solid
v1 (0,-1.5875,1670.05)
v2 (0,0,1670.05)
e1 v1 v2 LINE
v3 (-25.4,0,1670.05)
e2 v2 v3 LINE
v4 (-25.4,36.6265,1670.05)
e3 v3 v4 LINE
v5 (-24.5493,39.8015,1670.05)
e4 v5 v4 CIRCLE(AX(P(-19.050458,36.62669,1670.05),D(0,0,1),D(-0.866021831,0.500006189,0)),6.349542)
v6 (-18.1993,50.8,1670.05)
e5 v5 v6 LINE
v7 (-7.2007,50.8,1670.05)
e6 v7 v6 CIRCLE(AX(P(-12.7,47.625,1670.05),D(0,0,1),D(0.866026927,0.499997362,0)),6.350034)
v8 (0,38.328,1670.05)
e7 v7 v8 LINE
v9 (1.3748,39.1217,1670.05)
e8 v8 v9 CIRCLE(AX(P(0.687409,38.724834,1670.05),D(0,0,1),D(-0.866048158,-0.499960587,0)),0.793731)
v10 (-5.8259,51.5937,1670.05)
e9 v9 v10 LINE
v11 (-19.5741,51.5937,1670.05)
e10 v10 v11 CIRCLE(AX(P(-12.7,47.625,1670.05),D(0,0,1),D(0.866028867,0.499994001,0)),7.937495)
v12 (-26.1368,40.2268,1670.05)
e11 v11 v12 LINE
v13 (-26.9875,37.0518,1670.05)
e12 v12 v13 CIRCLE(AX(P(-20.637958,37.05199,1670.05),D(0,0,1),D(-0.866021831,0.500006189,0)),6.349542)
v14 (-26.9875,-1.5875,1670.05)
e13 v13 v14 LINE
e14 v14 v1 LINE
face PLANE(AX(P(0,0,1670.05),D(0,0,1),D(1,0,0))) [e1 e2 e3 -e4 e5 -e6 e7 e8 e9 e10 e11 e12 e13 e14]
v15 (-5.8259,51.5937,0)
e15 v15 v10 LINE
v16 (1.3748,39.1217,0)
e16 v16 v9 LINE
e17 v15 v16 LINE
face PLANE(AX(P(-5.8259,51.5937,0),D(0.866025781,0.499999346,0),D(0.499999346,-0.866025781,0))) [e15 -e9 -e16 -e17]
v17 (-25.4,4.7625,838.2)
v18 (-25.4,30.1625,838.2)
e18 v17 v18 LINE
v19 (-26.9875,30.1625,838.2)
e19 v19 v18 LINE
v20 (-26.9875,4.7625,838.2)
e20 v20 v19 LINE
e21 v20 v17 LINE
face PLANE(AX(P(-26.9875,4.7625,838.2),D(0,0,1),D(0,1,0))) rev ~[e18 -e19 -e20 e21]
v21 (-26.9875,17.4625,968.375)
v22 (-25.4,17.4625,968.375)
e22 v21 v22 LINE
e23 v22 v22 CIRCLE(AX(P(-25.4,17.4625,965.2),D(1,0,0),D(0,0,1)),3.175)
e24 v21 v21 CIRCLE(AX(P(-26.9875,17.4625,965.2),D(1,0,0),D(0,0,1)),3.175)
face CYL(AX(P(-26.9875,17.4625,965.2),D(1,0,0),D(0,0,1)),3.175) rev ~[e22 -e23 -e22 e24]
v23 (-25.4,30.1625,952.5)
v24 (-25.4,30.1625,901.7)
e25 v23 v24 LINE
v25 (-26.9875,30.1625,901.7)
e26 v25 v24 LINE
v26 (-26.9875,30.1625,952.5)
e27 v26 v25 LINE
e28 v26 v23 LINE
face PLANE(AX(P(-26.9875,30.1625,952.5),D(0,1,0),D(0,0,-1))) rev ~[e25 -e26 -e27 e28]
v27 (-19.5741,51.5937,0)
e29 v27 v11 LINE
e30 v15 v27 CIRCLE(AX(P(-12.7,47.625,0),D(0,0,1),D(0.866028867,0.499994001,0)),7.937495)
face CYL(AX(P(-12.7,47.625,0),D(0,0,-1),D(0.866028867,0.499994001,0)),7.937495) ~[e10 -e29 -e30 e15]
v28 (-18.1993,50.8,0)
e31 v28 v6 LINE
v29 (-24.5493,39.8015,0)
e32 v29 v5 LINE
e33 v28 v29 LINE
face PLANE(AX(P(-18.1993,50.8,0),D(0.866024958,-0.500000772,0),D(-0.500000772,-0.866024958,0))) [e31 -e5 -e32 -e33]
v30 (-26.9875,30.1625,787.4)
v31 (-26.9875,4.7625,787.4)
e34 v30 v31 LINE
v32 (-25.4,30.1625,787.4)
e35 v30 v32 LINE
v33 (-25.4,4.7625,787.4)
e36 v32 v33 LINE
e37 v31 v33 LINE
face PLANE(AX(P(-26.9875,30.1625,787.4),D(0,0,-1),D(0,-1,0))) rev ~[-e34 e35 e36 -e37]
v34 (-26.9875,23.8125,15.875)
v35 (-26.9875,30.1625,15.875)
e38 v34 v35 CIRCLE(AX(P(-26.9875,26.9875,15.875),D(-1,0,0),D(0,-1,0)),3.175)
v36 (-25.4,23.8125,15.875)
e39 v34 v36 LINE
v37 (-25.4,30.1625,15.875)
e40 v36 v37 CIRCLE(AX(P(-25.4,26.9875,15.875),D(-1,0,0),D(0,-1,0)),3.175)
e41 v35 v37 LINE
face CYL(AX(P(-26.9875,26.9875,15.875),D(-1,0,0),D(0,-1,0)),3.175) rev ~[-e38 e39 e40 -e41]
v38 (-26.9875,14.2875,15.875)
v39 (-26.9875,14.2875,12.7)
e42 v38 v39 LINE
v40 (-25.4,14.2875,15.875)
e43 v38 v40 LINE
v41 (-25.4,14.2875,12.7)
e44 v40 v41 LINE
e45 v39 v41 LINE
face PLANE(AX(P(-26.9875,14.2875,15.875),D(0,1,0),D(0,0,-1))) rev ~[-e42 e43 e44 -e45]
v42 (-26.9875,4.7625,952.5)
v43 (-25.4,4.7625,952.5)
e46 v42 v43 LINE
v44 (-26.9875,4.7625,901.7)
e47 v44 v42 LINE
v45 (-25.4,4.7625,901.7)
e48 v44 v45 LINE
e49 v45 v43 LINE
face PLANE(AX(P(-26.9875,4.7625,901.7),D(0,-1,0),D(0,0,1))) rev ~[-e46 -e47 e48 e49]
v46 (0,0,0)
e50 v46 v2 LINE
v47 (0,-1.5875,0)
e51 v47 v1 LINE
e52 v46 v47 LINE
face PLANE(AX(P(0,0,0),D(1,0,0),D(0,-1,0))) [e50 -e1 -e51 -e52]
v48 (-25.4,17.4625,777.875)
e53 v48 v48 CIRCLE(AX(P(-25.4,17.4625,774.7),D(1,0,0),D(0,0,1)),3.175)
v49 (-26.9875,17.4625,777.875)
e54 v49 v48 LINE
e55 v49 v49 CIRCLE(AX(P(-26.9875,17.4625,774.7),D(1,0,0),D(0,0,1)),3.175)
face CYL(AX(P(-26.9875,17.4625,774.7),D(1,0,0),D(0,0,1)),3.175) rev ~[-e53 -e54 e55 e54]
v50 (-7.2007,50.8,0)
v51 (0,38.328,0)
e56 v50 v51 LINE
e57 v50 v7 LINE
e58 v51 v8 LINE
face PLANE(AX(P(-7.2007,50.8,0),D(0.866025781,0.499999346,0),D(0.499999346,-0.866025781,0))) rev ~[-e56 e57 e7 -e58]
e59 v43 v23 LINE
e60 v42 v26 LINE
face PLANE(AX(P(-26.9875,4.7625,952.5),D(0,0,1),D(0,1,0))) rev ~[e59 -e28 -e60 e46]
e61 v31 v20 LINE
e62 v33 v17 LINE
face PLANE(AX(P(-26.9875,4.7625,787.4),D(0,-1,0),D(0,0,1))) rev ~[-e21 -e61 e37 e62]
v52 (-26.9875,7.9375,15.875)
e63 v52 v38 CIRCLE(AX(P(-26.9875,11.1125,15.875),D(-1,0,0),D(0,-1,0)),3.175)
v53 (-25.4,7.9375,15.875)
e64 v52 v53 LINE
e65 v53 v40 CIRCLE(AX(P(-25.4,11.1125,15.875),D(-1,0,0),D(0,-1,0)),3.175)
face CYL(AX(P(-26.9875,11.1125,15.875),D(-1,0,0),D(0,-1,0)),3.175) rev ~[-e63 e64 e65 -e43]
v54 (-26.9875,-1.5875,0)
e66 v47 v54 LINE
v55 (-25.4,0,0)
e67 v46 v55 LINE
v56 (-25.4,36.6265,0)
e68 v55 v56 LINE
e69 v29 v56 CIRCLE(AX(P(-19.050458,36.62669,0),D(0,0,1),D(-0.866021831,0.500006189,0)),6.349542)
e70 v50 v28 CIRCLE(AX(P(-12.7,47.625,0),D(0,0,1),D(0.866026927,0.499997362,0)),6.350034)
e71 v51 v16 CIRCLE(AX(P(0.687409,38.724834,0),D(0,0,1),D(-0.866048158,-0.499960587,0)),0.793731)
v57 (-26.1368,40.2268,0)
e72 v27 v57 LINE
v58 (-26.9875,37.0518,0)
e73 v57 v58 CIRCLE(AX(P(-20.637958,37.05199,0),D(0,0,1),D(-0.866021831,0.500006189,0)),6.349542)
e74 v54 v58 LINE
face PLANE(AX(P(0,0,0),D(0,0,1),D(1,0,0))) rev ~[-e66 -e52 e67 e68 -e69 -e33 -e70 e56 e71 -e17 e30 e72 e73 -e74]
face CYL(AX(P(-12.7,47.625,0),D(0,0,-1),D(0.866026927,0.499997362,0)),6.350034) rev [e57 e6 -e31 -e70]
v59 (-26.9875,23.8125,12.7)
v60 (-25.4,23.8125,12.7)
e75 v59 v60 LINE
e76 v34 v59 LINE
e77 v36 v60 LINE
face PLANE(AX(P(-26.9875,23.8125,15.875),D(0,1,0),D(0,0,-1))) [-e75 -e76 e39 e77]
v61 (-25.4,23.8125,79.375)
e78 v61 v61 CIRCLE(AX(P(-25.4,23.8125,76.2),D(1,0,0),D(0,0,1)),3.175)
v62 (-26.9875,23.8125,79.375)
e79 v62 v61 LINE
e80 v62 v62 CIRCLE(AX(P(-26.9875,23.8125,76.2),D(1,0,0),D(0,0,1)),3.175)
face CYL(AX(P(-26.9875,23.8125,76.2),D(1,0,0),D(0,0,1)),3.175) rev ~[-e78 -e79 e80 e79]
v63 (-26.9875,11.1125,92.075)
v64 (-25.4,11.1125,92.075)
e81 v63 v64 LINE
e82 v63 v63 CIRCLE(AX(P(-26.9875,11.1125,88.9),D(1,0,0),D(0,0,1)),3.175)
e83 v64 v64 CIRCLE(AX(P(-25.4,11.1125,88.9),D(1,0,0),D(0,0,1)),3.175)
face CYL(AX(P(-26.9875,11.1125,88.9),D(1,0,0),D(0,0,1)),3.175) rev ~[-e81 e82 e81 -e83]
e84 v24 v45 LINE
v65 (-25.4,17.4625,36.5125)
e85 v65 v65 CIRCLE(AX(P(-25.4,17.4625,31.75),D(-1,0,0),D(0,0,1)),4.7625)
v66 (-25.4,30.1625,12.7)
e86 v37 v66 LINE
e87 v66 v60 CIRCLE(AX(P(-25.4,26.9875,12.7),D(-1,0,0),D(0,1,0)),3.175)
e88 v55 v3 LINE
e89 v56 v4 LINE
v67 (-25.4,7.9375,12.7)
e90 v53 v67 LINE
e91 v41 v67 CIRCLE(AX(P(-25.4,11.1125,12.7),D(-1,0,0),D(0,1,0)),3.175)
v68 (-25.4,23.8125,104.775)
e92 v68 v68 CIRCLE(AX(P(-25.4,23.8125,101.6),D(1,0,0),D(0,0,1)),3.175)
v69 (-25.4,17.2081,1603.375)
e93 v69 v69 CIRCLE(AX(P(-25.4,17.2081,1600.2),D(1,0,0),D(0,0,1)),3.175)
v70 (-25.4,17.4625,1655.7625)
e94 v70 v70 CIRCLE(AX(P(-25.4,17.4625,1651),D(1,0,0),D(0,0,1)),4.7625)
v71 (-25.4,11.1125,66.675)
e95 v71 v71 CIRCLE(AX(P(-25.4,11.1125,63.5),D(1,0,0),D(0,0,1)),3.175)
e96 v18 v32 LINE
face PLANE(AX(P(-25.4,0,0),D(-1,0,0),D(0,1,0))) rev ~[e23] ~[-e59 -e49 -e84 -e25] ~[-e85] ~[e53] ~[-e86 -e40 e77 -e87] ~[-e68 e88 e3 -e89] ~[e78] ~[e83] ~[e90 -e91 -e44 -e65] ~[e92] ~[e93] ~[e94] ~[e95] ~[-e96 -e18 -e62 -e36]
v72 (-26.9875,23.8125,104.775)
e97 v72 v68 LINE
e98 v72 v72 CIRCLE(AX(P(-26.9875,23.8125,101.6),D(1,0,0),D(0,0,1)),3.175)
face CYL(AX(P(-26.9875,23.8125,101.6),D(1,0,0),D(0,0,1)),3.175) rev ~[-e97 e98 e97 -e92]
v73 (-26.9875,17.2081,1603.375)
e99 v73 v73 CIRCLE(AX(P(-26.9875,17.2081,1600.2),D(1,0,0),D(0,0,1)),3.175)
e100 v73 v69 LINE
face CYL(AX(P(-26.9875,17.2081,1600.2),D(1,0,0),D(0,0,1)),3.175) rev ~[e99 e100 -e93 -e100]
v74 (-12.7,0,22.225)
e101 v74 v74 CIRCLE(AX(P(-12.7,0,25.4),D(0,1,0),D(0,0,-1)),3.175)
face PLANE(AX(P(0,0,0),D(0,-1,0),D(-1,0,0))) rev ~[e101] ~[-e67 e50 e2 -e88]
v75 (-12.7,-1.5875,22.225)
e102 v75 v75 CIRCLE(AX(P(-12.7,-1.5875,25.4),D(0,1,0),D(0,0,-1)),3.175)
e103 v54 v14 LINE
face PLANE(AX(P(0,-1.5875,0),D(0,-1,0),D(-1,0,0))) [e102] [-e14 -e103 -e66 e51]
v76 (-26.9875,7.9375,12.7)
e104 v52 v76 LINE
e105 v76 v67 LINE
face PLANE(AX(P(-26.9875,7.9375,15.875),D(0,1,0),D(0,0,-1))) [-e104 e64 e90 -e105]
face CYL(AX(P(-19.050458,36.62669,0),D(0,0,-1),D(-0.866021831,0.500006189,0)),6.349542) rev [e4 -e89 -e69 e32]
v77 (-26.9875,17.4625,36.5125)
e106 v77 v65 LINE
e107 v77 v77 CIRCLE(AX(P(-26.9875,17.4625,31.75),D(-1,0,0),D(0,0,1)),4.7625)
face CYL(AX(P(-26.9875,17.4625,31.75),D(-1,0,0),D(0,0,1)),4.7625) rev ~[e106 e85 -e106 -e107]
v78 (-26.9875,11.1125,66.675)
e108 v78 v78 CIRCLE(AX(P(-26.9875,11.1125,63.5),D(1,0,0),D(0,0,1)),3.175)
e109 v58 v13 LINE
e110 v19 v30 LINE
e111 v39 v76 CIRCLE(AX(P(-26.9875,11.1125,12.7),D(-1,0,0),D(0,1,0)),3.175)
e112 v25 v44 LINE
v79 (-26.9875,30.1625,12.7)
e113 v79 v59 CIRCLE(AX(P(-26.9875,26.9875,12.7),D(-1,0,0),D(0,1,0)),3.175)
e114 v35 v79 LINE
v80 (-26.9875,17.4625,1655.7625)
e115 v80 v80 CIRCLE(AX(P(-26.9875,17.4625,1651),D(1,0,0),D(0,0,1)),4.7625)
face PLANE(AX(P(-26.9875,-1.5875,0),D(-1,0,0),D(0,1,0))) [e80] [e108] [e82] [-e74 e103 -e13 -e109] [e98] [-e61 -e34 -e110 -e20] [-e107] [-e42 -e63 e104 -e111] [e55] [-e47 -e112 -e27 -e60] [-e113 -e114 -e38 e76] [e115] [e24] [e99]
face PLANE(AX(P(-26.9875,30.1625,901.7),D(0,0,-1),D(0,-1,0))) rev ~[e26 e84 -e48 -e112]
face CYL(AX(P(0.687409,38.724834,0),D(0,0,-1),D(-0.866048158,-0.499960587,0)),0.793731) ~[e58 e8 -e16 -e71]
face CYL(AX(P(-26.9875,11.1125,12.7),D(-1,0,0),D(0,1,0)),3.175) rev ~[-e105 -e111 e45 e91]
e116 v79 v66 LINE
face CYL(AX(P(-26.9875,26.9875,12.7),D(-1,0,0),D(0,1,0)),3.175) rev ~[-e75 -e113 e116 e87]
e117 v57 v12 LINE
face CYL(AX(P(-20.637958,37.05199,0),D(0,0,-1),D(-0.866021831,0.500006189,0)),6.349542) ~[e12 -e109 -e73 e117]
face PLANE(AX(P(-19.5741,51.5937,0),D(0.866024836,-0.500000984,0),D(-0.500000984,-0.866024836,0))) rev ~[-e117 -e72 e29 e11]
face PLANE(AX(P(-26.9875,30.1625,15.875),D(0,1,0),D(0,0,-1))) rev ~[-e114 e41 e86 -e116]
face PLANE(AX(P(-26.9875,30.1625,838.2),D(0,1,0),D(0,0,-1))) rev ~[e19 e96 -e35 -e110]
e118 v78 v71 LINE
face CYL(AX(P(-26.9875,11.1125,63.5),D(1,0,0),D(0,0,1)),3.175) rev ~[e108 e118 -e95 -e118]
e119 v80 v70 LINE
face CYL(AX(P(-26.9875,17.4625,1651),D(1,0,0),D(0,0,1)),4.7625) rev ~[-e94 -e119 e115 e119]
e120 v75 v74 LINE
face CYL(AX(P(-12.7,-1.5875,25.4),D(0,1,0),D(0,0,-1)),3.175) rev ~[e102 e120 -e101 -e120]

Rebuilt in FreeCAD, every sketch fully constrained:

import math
import FreeCAD as App
import Part
import Sketcher
Q = App.Units.Quantity


def add_polygon(sketch, points):
    """Adds a closed chain of lines whose ends are joined by coincident constraints."""
    first, n = sketch.GeometryCount, len(points)
    for a, b in zip(points, points[1:] + points[:1]):
        sketch.addGeometry(Part.LineSegment(App.Vector(*a, 0), App.Vector(*b, 0)), False)
    for i in range(n):
        sketch.addConstraint(Sketcher.Constraint("Coincident", first + i, 2, first + (i + 1) % n, 1))

doc = App.newDocument("Part")
body = doc.addObject("PartDesign::Body", "Body")

# Sketch on XY plane
sketch1 = body.newObject("Sketcher::SketchObject", "Sketch")
sketch1.AttachmentSupport = (doc.getObject("XY_Plane"), [""])
sketch1.MapMode = "FlatFace"
sketch1.addGeometry([
    Part.LineSegment(App.Vector(0, -1.6, 0), App.Vector(0, 0, 0)),  # 0
    Part.LineSegment(App.Vector(0, 0, 0), App.Vector(-25.4, 0, 0)),  # 1
    Part.LineSegment(App.Vector(-25.4, 0, 0), App.Vector(-25.4, 36.6, 0)),  # 2
    Part.ArcOfCircle(Part.Circle(App.Vector(-19.1, 36.6, 0), App.Vector(0, 0, 1), 6.4), math.radians(150), math.radians(180)),  # 3
    Part.LineSegment(App.Vector(-24.5, 39.8, 0), App.Vector(-18.2, 50.8, 0)),  # 4
    Part.ArcOfCircle(Part.Circle(App.Vector(-12.7, 47.6, 0), App.Vector(0, 0, 1), 6.4), math.radians(30), math.radians(150)),  # 5
    Part.LineSegment(App.Vector(-7.2, 50.8, 0), App.Vector(0, 38.3, 0)),  # 6
    Part.ArcOfCircle(Part.Circle(App.Vector(0.7, 38.7, 0), App.Vector(0, 0, 1), 0.8), math.radians(-150), math.radians(30)),  # 7
    Part.LineSegment(App.Vector(1.4, 39.1, 0), App.Vector(-5.8, 51.6, 0)),  # 8
    Part.ArcOfCircle(Part.Circle(App.Vector(-12.7, 47.6, 0), App.Vector(0, 0, 1), 7.9), math.radians(30), math.radians(150)),  # 9
    Part.LineSegment(App.Vector(-19.6, 51.6, 0), App.Vector(-26.1, 40.2, 0)),  # 10
    Part.ArcOfCircle(Part.Circle(App.Vector(-20.6, 37.1, 0), App.Vector(0, 0, 1), 6.4), math.radians(150), math.radians(180)),  # 11
    Part.LineSegment(App.Vector(-27, 37.1, 0), App.Vector(-27, -1.6, 0)),  # 12
    Part.LineSegment(App.Vector(-27, -1.6, 0), App.Vector(0, -1.6, 0)),  # 13
], False)
sketch1.addConstraint([
    Sketcher.Constraint("Coincident", 0, 2, 1, 1),
    Sketcher.Constraint("Coincident", 1, 2, 2, 1),
    Sketcher.Constraint("Tangent", 2, 2, 3, 2),
    Sketcher.Constraint("Tangent", 3, 1, 4, 1),
    Sketcher.Constraint("Tangent", 4, 2, 5, 2),
    Sketcher.Constraint("Tangent", 5, 1, 6, 1),
    Sketcher.Constraint("Tangent", 6, 2, 7, 1),
    Sketcher.Constraint("Tangent", 7, 2, 8, 1),
    Sketcher.Constraint("Tangent", 8, 2, 9, 1),
    Sketcher.Constraint("Tangent", 9, 2, 10, 1),
    Sketcher.Constraint("Tangent", 10, 2, 11, 1),
    Sketcher.Constraint("Tangent", 11, 2, 12, 1),
    Sketcher.Constraint("Coincident", 12, 2, 13, 1),
    Sketcher.Constraint("Coincident", 13, 2, 0, 1),
    Sketcher.Constraint("Vertical", 0),
    Sketcher.Constraint("Horizontal", 1),
    Sketcher.Constraint("Vertical", 2),
    Sketcher.Constraint("Vertical", 12),
    Sketcher.Constraint("Horizontal", 13),
    Sketcher.Constraint("Coincident", 0, 2, -1, 1),
    Sketcher.Constraint("Coincident", 9, 3, 5, 3),
    Sketcher.Constraint("Equal", 3, 5),
    Sketcher.Constraint("Equal", 5, 11),
    Sketcher.Constraint("PointOnObject", 6, 2, -2),
    Sketcher.Constraint("Parallel", 6, 8),
    Sketcher.Constraint("Parallel", 4, 10),
    Sketcher.Constraint("Horizontal", 4, 2, 5, 1),
    Sketcher.Constraint("Radius", 3, Q("0.25 in")),
    Sketcher.Constraint("Angle", 4, Q("60 deg")),
    Sketcher.Constraint("Radius", 7, Q("0.031248 in")),
    Sketcher.Constraint("Distance", 4, Q("0.5 in")),
    Sketcher.Constraint("DistanceX", 5, 3, -1, 1, Q("0.5 in")),
    Sketcher.Constraint("DistanceX", 13, 1, 13, 2, Q("1.0625 in")),
    Sketcher.Constraint("DistanceY", 0, 1, 0, 2, Q("0.0625 in")),
    Sketcher.Constraint("DistanceY", -1, 1, 4, 2, Q("2 in")),
])
pad1 = body.newObject("PartDesign::Pad", "Pad")
pad1.Profile = sketch1
pad1.Length = Q("66.5 in")

# Sketch on YZ plane
sketch2 = body.newObject("Sketcher::SketchObject", "Sketch001")
sketch2.AttachmentSupport = (doc.getObject("YZ_Plane"), [""])
sketch2.MapMode = "FlatFace"
sketch2.AttachmentOffset = App.Placement(App.Vector(0, 0, -1.0625 * 25.4), App.Rotation())
sketch2.addGeometry(Part.Circle(App.Vector(17.5, 1651, 0), App.Vector(0, 0, 1), 4.8), False)
sketch2.addConstraint([
    Sketcher.Constraint("Diameter", 0, Q("0.375 in")),
    Sketcher.Constraint("DistanceY", -1, 1, 0, 3, Q("65 in")),
    Sketcher.Constraint("DistanceX", -1, 1, 0, 3, Q("0.6875 in")),
])
doc.recompute()
hole = body.newObject("PartDesign::Hole", "Hole")
hole.Profile = sketch2
hole.ThreadType = "None"
hole.Diameter = Q("0.375 in")
hole.DepthType = "ThroughAll"
hole.Reversed = True

# Sketch on YZ plane
sketch3 = body.newObject("Sketcher::SketchObject", "Sketch002")
sketch3.AttachmentSupport = (doc.getObject("YZ_Plane"), [""])
sketch3.MapMode = "FlatFace"
sketch3.AttachmentOffset = App.Placement(App.Vector(0, 0, -1.0625 * 25.4), App.Rotation())
sketch3.addGeometry([
    Part.Circle(App.Vector(17.5, 31.8, 0), App.Vector(0, 0, 1), 4.8),  # 0
    Part.LineSegment(App.Vector(23.8, 12.7, 0), App.Vector(23.8, 15.9, 0)),  # 1
    Part.ArcOfCircle(Part.Circle(App.Vector(27, 15.9, 0), App.Vector(0, 0, 1), 3.2), math.radians(0), math.radians(180)),  # 2
    Part.LineSegment(App.Vector(30.2, 15.9, 0), App.Vector(30.2, 12.7, 0)),  # 3
    Part.ArcOfCircle(Part.Circle(App.Vector(27, 12.7, 0), App.Vector(0, 0, 1), 3.2), math.radians(180), math.radians(360)),  # 4
    Part.LineSegment(App.Vector(7.9, 12.7, 0), App.Vector(7.9, 15.9, 0)),  # 5
    Part.ArcOfCircle(Part.Circle(App.Vector(11.1, 15.9, 0), App.Vector(0, 0, 1), 3.2), math.radians(0), math.radians(180)),  # 6
    Part.LineSegment(App.Vector(14.3, 15.9, 0), App.Vector(14.3, 12.7, 0)),  # 7
    Part.ArcOfCircle(Part.Circle(App.Vector(11.1, 12.7, 0), App.Vector(0, 0, 1), 3.2), math.radians(180), math.radians(360)),  # 8
], False)
sketch3.addConstraint([
    Sketcher.Constraint("Tangent", 1, 2, 2, 2),
    Sketcher.Constraint("Tangent", 2, 1, 3, 1),
    Sketcher.Constraint("Tangent", 3, 2, 4, 2),
    Sketcher.Constraint("Tangent", 4, 1, 1, 1),
    Sketcher.Constraint("Tangent", 5, 2, 6, 2),
    Sketcher.Constraint("Tangent", 6, 1, 7, 1),
    Sketcher.Constraint("Tangent", 7, 2, 8, 2),
    Sketcher.Constraint("Tangent", 8, 1, 5, 1),
    Sketcher.Constraint("Vertical", 1),
    Sketcher.Constraint("Vertical", 3),
    Sketcher.Constraint("Vertical", 5),
    Sketcher.Constraint("Vertical", 7),
    Sketcher.Constraint("Equal", 4, 6),
    Sketcher.Constraint("Horizontal", 2, 3, 6, 3),
    Sketcher.Constraint("Horizontal", 4, 3, 8, 3),
    Sketcher.Constraint("Diameter", 0, Q("0.375 in")),
    Sketcher.Constraint("Radius", 2, Q("0.125 in")),
    Sketcher.Constraint("DistanceY", -1, 1, 4, 3, Q("0.5 in")),
    Sketcher.Constraint("DistanceX", 6, 3, 1, 2, Q("0.5 in")),
    Sketcher.Constraint("DistanceY", 1, 1, 1, 2, Q("0.125 in")),
    Sketcher.Constraint("DistanceY", -1, 1, 0, 3, Q("1.25 in")),
    Sketcher.Constraint("DistanceX", 0, 3, 2, 3, Q("0.375 in")),
    Sketcher.Constraint("DistanceX", -1, 1, 0, 3, Q("0.6875 in")),
])
pocket1 = body.newObject("PartDesign::Pocket", "Pocket")
pocket1.Profile = sketch3
pocket1.Length = Q("1 in")
pocket1.Reversed = True

# Sketch on YZ plane
sketch4 = body.newObject("Sketcher::SketchObject", "Sketch003")
sketch4.AttachmentSupport = (doc.getObject("YZ_Plane"), [""])
sketch4.MapMode = "FlatFace"
sketch4.AttachmentOffset = App.Placement(App.Vector(0, 0, -1.0625 * 25.4), App.Rotation())
sketch4.addGeometry([
    Part.Circle(App.Vector(23.8, 101.6, 0), App.Vector(0, 0, 1), 3.2),
    Part.Circle(App.Vector(11.1, 88.9, 0), App.Vector(0, 0, 1), 3.2),
    Part.Circle(App.Vector(23.8, 76.2, 0), App.Vector(0, 0, 1), 3.2),
    Part.Circle(App.Vector(11.1, 63.5, 0), App.Vector(0, 0, 1), 3.2),
], False)
sketch4.addConstraint([
    Sketcher.Constraint("Equal", 0, 1),
    Sketcher.Constraint("Equal", 1, 2),
    Sketcher.Constraint("Equal", 2, 3),
    Sketcher.Constraint("Vertical", 0, 3, 2, 3),
    Sketcher.Constraint("Vertical", 1, 3, 3, 3),
    Sketcher.Constraint("Diameter", 0, Q("0.25 in")),
    Sketcher.Constraint("DistanceY", -1, 1, 0, 3, Q("4 in")),
    Sketcher.Constraint("DistanceY", -1, 1, 2, 3, Q("3 in")),
    Sketcher.Constraint("DistanceY", 3, 3, 1, 3, Q("1 in")),
    Sketcher.Constraint("DistanceY", -1, 1, 1, 3, Q("3.5 in")),
    Sketcher.Constraint("DistanceX", 1, 3, 0, 3, Q("0.5 in")),
    Sketcher.Constraint("DistanceX", -1, 1, 0, 3, Q("0.9375 in")),
])
doc.recompute()
hole2 = body.newObject("PartDesign::Hole", "Hole001")
hole2.Profile = sketch4
hole2.ThreadType = "None"
hole2.Diameter = Q("0.25 in")
hole2.DepthType = "ThroughAll"
hole2.Reversed = True

# Sketch on YZ plane
sketch5 = body.newObject("Sketcher::SketchObject", "Sketch004")
sketch5.AttachmentSupport = (doc.getObject("YZ_Plane"), [""])
sketch5.MapMode = "FlatFace"
sketch5.AttachmentOffset = App.Placement(App.Vector(0, 0, -1.0625 * 25.4), App.Rotation())
add_polygon(sketch5, [(30, 787), (5, 787), (5, 838), (30, 838)])  # lines 0-3
add_polygon(sketch5, [(30, 902), (5, 902), (5, 952), (30, 952)])  # lines 4-7
sketch5.addConstraint([
    Sketcher.Constraint("Horizontal", 0),
    Sketcher.Constraint("Vertical", 1),
    Sketcher.Constraint("Horizontal", 2),
    Sketcher.Constraint("Vertical", 3),
    Sketcher.Constraint("Horizontal", 4),
    Sketcher.Constraint("Vertical", 5),
    Sketcher.Constraint("Horizontal", 6),
    Sketcher.Constraint("Vertical", 7),
    Sketcher.Constraint("Vertical", 1, 2, 4, 2),
    Sketcher.Constraint("Vertical", 3, 2, 6, 2),
    Sketcher.Constraint("Equal", 3, 5),
    Sketcher.Constraint("DistanceX", 0, 2, 0, 1, Q("1 in")),
    Sketcher.Constraint("DistanceY", 1, 1, 1, 2, Q("2 in")),
    Sketcher.Constraint("DistanceY", -1, 1, 0, 2, Q("31 in")),
    Sketcher.Constraint("DistanceY", -1, 1, 4, 2, Q("35.5 in")),
    Sketcher.Constraint("DistanceX", -1, 1, 0, 2, Q("0.1875 in")),
])
pocket2 = body.newObject("PartDesign::Pocket", "Pocket001")
pocket2.Profile = sketch5
pocket2.Length = Q("1 in")
pocket2.Reversed = True

# Sketch on YZ plane
sketch6 = body.newObject("Sketcher::SketchObject", "Sketch005")
sketch6.AttachmentSupport = (doc.getObject("YZ_Plane"), [""])
sketch6.MapMode = "FlatFace"
sketch6.AttachmentOffset = App.Placement(App.Vector(0, 0, -1.0625 * 25.4), App.Rotation())
sketch6.addGeometry([
    Part.Circle(App.Vector(17.5, 965.2, 0), App.Vector(0, 0, 1), 3.2),
    Part.Circle(App.Vector(17.5, 774.7, 0), App.Vector(0, 0, 1), 3.2),
], False)
sketch6.addConstraint([
    Sketcher.Constraint("Equal", 0, 1),
    Sketcher.Constraint("Vertical", 0, 3, 1, 3),
    Sketcher.Constraint("Diameter", 0, Q("0.25 in")),
    Sketcher.Constraint("DistanceY", -1, 1, 0, 3, Q("38 in")),
    Sketcher.Constraint("DistanceY", -1, 1, 1, 3, Q("30.5 in")),
    Sketcher.Constraint("DistanceX", -1, 1, 0, 3, Q("0.6875 in")),
])
doc.recompute()
hole3 = body.newObject("PartDesign::Hole", "Hole002")
hole3.Profile = sketch6
hole3.ThreadType = "None"
hole3.Diameter = Q("0.25 in")
hole3.DepthType = "ThroughAll"
hole3.Reversed = True

# Sketch on XZ plane
sketch7 = body.newObject("Sketcher::SketchObject", "Sketch006")
sketch7.AttachmentSupport = (doc.getObject("XZ_Plane"), [""])
sketch7.MapMode = "FlatFace"
sketch7.AttachmentOffset = App.Placement(App.Vector(0, 0, 0.0625 * 25.4), App.Rotation())
sketch7.addGeometry([
    Part.Circle(App.Vector(-12.7, 25.4, 0), App.Vector(0, 0, 1), 3.2),
    Part.Circle(App.Vector(-12.7, 1676.4, 0), App.Vector(0, 0, 1), 3.2),
], False)
sketch7.addConstraint([
    Sketcher.Constraint("Equal", 0, 1),
    Sketcher.Constraint("Vertical", 0, 3, 1, 3),
    Sketcher.Constraint("Diameter", 0, Q("0.25 in")),
    Sketcher.Constraint("DistanceY", -1, 1, 0, 3, Q("1 in")),
    Sketcher.Constraint("DistanceY", -1, 1, 1, 3, Q("66 in")),
    Sketcher.Constraint("DistanceX", 0, 3, -1, 1, Q("0.5 in")),
])
doc.recompute()
hole4 = body.newObject("PartDesign::Hole", "Hole003")
hole4.Profile = sketch7
hole4.ThreadType = "None"
hole4.Diameter = Q("0.25 in")
hole4.DepthType = "Dimension"
hole4.Depth = Q("1 in")
hole4.DrillPoint = "Angled"
hole4.DrillPointAngle = 118

# Sketch on XY plane
sketch8 = body.newObject("Sketcher::SketchObject", "Sketch007")
sketch8.AttachmentSupport = (doc.getObject("XY_Plane"), [""])
sketch8.MapMode = "FlatFace"
sketch8.AttachmentOffset = App.Placement(App.Vector(0, 0, 66.5 * 25.4), App.Rotation())
sketch8.addGeometry([
    Part.LineSegment(App.Vector(0, -1.6, 0), App.Vector(0, 0, 0)),  # 0
    Part.LineSegment(App.Vector(0, 0, 0), App.Vector(-25.4, 0, 0)),  # 1
    Part.LineSegment(App.Vector(-25.4, 0, 0), App.Vector(-25.4, 36.6, 0)),  # 2
    Part.ArcOfCircle(Part.Circle(App.Vector(-19.1, 36.6, 0), App.Vector(0, 0, 1), 6.4), math.radians(150), math.radians(180)),  # 3
    Part.LineSegment(App.Vector(-24.5, 39.8, 0), App.Vector(-18.2, 50.8, 0)),  # 4
    Part.ArcOfCircle(Part.Circle(App.Vector(-12.7, 47.6, 0), App.Vector(0, 0, 1), 6.4), math.radians(30), math.radians(150)),  # 5
    Part.LineSegment(App.Vector(-7.2, 50.8, 0), App.Vector(0, 38.3, 0)),  # 6
    Part.ArcOfCircle(Part.Circle(App.Vector(0.7, 38.7, 0), App.Vector(0, 0, 1), 0.8), math.radians(-150), math.radians(30)),  # 7
    Part.LineSegment(App.Vector(1.4, 39.1, 0), App.Vector(-5.8, 51.6, 0)),  # 8
    Part.ArcOfCircle(Part.Circle(App.Vector(-12.7, 47.6, 0), App.Vector(0, 0, 1), 7.9), math.radians(30), math.radians(150)),  # 9
    Part.LineSegment(App.Vector(-19.6, 51.6, 0), App.Vector(-26.1, 40.2, 0)),  # 10
    Part.ArcOfCircle(Part.Circle(App.Vector(-20.6, 37.1, 0), App.Vector(0, 0, 1), 6.4), math.radians(150), math.radians(180)),  # 11
    Part.LineSegment(App.Vector(-27, 37.1, 0), App.Vector(-27, -1.6, 0)),  # 12
    Part.LineSegment(App.Vector(-27, -1.6, 0), App.Vector(0, -1.6, 0)),  # 13
], False)
sketch8.addConstraint([
    Sketcher.Constraint("Coincident", 0, 2, 1, 1),
    Sketcher.Constraint("Coincident", 1, 2, 2, 1),
    Sketcher.Constraint("Tangent", 2, 2, 3, 2),
    Sketcher.Constraint("Tangent", 3, 1, 4, 1),
    Sketcher.Constraint("Tangent", 4, 2, 5, 2),
    Sketcher.Constraint("Tangent", 5, 1, 6, 1),
    Sketcher.Constraint("Tangent", 6, 2, 7, 1),
    Sketcher.Constraint("Tangent", 7, 2, 8, 1),
    Sketcher.Constraint("Tangent", 8, 2, 9, 1),
    Sketcher.Constraint("Tangent", 9, 2, 10, 1),
    Sketcher.Constraint("Tangent", 10, 2, 11, 1),
    Sketcher.Constraint("Tangent", 11, 2, 12, 1),
    Sketcher.Constraint("Coincident", 12, 2, 13, 1),
    Sketcher.Constraint("Coincident", 13, 2, 0, 1),
    Sketcher.Constraint("Vertical", 0),
    Sketcher.Constraint("Horizontal", 1),
    Sketcher.Constraint("Vertical", 2),
    Sketcher.Constraint("Vertical", 12),
    Sketcher.Constraint("Horizontal", 13),
    Sketcher.Constraint("Coincident", 0, 2, -1, 1),
    Sketcher.Constraint("Coincident", 9, 3, 5, 3),
    Sketcher.Constraint("Equal", 3, 5),
    Sketcher.Constraint("Equal", 5, 11),
    Sketcher.Constraint("PointOnObject", 6, 2, -2),
    Sketcher.Constraint("Parallel", 6, 8),
    Sketcher.Constraint("Parallel", 4, 10),
    Sketcher.Constraint("Horizontal", 4, 2, 5, 1),
    Sketcher.Constraint("DistanceX", 1, 2, 1, 1, Q("1 in")),
    Sketcher.Constraint("Radius", 3, Q("0.25 in")),
    Sketcher.Constraint("DistanceY", -1, 1, 4, 2, Q("2 in")),
    Sketcher.Constraint("Angle", 4, Q("60 deg")),
    Sketcher.Constraint("Radius", 7, Q("0.031248 in")),
    Sketcher.Constraint("Distance", 4, Q("0.5 in")),
    Sketcher.Constraint("DistanceX", 13, 1, 13, 2, Q("1.0625 in")),
    Sketcher.Constraint("DistanceY", 0, 1, 0, 2, Q("0.0625 in")),
])
pocket3 = body.newObject("PartDesign::Pocket", "Pocket002")
pocket3.Profile = sketch8
pocket3.Length = Q("0.75 in")

# Sketch on YZ plane
sketch9 = body.newObject("Sketcher::SketchObject", "Sketch008")
sketch9.AttachmentSupport = (doc.getObject("YZ_Plane"), [""])
sketch9.MapMode = "FlatFace"
sketch9.AttachmentOffset = App.Placement(App.Vector(0, 0, -1.0625 * 25.4), App.Rotation())
sketch9.addGeometry(Part.Circle(App.Vector(17.2, 1600.2, 0), App.Vector(0, 0, 1), 3.2), False)
sketch9.addConstraint([
    Sketcher.Constraint("Diameter", 0, Q("0.25 in")),
    Sketcher.Constraint("DistanceY", -1, 1, 0, 3, Q("63 in")),
    Sketcher.Constraint("DistanceX", -1, 1, 0, 3, Q("17.208 mm")),
])
doc.recompute()
hole5 = body.newObject("PartDesign::Hole", "Hole004")
hole5.Profile = sketch9
hole5.ThreadType = "None"
hole5.Diameter = Q("0.25 in")
hole5.DepthType = "ThroughAll"
hole5.Reversed = True

doc.recompute()
